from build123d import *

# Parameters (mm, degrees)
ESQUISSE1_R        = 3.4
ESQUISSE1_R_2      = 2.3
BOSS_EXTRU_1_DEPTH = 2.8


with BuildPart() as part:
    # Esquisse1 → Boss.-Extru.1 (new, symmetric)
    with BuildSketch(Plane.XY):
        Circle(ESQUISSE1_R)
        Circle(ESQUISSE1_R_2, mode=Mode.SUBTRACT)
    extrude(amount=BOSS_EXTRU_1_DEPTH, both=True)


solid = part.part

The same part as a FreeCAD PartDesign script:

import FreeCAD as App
import Part
import Sketcher
from FreeCAD import Vector

doc = App.newDocument("Part")
params = doc.addObject("Spreadsheet::Sheet", "Params")
for row, (alias, value) in enumerate([
    ("sketch1_diameter", "6.8 mm"),
    ("sketch1_diameter2", "4.6 mm"),
    ("pad1_length", "5.6 mm"),
], start=1):
    params.set(f"A{row}", alias)
    params.set(f"B{row}", "=" + value)
    params.setAlias(f"B{row}", alias)

body = doc.addObject("PartDesign::Body", "Body")

# Sketch on XY plane
sketch1 = body.newObject("Sketcher::SketchObject", "Sketch")
sketch1.AttachmentSupport = (doc.getObject("XY_Plane"), [""])
sketch1.MapMode = "FlatFace"
sketch1.addGeometry(Part.Circle(Vector(0, 0, 0), Vector(0, 0, 1), 3.4), False)
sketch1.addGeometry(Part.Circle(Vector(0, 0, 0), Vector(0, 0, 1), 2.3), False)
sketch1.addConstraint(Sketcher.Constraint("Coincident", 0, 3, -1, 1))
sketch1.addConstraint(Sketcher.Constraint("Coincident", 1, 3, -1, 1))
sketch1.addConstraint(Sketcher.Constraint("Diameter", 0, 6.8))
sketch1.addConstraint(Sketcher.Constraint("Diameter", 1, 4.6))
sketch1.setExpression("Constraints[2]", "Params.sketch1_diameter")
sketch1.setExpression("Constraints[3]", "Params.sketch1_diameter2")
pad1 = body.newObject("PartDesign::Pad", "Pad")
pad1.Profile = sketch1
pad1.setExpression("Length", "Params.pad1_length")
pad1.Midplane = True

doc.recompute()
